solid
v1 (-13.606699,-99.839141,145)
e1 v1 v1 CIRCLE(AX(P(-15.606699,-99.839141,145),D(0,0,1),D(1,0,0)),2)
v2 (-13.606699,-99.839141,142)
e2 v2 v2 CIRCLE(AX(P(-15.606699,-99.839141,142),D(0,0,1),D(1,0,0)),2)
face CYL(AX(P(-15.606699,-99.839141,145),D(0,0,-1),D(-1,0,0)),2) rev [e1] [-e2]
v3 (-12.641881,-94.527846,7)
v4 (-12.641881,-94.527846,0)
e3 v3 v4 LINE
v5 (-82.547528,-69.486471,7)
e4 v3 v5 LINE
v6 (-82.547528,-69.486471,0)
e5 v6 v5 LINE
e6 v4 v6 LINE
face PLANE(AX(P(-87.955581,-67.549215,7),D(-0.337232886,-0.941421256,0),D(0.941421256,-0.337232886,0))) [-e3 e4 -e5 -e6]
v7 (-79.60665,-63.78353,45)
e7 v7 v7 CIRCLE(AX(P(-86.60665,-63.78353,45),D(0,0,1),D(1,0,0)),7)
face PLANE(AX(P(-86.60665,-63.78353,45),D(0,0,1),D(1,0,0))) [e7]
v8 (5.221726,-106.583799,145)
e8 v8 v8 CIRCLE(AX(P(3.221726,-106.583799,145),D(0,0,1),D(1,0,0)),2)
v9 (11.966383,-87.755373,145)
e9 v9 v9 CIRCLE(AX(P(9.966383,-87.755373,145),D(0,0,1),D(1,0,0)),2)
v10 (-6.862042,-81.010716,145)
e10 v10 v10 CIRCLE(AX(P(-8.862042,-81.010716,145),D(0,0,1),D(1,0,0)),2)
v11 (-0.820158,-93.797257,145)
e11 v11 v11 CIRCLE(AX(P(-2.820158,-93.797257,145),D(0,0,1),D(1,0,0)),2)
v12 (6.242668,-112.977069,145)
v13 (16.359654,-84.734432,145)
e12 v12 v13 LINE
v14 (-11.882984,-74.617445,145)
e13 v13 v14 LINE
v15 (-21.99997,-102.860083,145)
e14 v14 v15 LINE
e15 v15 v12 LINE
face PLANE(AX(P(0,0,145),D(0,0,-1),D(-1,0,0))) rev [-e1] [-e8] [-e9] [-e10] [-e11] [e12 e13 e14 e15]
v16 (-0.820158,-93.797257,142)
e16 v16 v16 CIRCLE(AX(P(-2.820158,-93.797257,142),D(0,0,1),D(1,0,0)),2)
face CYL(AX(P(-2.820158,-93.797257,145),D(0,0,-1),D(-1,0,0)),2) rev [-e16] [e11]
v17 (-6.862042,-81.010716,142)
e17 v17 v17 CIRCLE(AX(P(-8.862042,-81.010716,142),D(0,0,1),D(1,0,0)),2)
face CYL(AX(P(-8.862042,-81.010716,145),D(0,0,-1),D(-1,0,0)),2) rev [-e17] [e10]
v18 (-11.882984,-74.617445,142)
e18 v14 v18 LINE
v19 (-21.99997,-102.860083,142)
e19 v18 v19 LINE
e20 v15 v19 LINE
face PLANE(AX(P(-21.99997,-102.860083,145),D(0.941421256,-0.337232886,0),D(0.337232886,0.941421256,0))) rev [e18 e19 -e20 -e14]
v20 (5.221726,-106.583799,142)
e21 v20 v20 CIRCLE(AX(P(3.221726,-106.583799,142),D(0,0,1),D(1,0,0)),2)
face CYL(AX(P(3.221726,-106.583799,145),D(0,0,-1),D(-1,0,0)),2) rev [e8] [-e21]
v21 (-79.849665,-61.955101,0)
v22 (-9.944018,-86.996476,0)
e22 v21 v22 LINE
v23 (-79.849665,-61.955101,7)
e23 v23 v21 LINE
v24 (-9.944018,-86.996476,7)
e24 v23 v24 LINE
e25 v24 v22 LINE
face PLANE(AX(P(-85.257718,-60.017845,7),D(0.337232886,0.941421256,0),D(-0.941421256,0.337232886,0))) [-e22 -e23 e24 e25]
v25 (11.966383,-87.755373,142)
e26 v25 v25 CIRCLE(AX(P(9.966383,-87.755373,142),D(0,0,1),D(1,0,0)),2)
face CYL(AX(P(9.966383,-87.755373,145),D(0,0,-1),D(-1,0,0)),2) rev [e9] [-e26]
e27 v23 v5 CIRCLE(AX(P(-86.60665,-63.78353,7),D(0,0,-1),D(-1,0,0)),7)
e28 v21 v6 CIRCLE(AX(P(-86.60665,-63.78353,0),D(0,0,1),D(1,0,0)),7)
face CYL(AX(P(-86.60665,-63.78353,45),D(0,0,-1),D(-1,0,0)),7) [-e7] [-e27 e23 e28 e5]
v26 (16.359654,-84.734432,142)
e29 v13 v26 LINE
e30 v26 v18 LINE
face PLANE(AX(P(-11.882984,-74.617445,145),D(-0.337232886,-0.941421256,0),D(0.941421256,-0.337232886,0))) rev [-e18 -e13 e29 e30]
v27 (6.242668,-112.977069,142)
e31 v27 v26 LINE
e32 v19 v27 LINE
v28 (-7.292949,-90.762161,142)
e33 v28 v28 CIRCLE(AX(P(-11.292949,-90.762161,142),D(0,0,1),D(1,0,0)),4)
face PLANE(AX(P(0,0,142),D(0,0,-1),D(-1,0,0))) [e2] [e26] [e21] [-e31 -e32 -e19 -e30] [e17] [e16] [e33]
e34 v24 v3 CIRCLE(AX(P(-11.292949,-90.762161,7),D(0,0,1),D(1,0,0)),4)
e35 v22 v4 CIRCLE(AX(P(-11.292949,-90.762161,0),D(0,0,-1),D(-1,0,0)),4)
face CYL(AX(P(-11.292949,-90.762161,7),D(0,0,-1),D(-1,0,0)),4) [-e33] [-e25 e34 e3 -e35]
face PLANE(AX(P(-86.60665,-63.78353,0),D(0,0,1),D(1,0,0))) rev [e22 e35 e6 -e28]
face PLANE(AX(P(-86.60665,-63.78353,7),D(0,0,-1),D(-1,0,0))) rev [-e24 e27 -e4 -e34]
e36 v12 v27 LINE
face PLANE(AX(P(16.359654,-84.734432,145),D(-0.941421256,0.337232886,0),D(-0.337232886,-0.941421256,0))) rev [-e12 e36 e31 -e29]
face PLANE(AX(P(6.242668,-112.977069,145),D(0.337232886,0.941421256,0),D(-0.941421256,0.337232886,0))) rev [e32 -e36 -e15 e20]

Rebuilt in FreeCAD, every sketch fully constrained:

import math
import FreeCAD as App
import Part
import Sketcher

V = App.Vector

doc = App.newDocument("Part")
body = doc.addObject("PartDesign::Body", "Body")

sketch1 = body.newObject("Sketcher::SketchObject", "Sketch")
sketch1.AttachmentSupport = (doc.getObject("XY_Plane"), [""])
sketch1.MapMode = "FlatFace"
sketch1.addGeometry(Part.Circle(V(-87, -64, 0), V(0, 0, 1), 7), False)
sketch1.addConstraint(Sketcher.Constraint("Diameter", 0, 14.0))
sketch1.addConstraint(Sketcher.Constraint("DistanceX", 0, 3, -1, 1, 86.60665))
sketch1.addConstraint(Sketcher.Constraint("DistanceY", 0, 3, -1, 1, 63.78353))
pad1 = body.newObject("PartDesign::Pad", "Pad")
pad1.Profile = sketch1
pad1.Length = 45

sketch2 = body.newObject("Sketcher::SketchObject", "Sketch001")
sketch2.AttachmentSupport = (doc.getObject("XY_Plane"), [""])
sketch2.MapMode = "FlatFace"
sketch2.addGeometry(Part.LineSegment(V(-12.6, -94.5, 0), V(-88, -67.5, 0)), False)
sketch2.addGeometry(Part.ArcOfCircle(Part.Circle(V(-86.6, -63.8, 0), V(0, 0, 1), 4), math.radians(70), math.radians(250)), False)
sketch2.addGeometry(Part.LineSegment(V(-85.3, -60, 0), V(-9.9, -87, 0)), False)
sketch2.addGeometry(Part.ArcOfCircle(Part.Circle(V(-11.3, -90.8, 0), V(0, 0, 1), 4), math.radians(-110), math.radians(70)), False)
sketch2.addConstraint(Sketcher.Constraint("Tangent", 0, 2, 1, 2))
sketch2.addConstraint(Sketcher.Constraint("Tangent", 1, 1, 2, 1))
sketch2.addConstraint(Sketcher.Constraint("Tangent", 2, 2, 3, 2))
sketch2.addConstraint(Sketcher.Constraint("Tangent", 3, 1, 0, 1))
sketch2.addConstraint(Sketcher.Constraint("Equal", 1, 3))
sketch2.addConstraint(Sketcher.Constraint("Radius", 1, 4.0))
sketch2.addConstraint(Sketcher.Constraint("Distance", 0, 80.0))
sketch2.addConstraint(Sketcher.Constraint("DistanceY", 3, 1, 1, 1, 34.510001))
sketch2.addConstraint(Sketcher.Constraint("DistanceX", 1, 3, -1, 1, 86.60665))
sketch2.addConstraint(Sketcher.Constraint("DistanceY", 1, 3, -1, 1, 63.78353))
pad2 = body.newObject("PartDesign::Pad", "Pad001")
pad2.Profile = sketch2
pad2.Length = 7

sketch3 = body.newObject("Sketcher::SketchObject", "Sketch002")
sketch3.AttachmentSupport = (doc.getObject("XY_Plane"), [""])
sketch3.MapMode = "FlatFace"
sketch3.AttachmentOffset = App.Placement(V(0, 0, 7), App.Rotation())
sketch3.addGeometry(Part.Circle(V(-11.3, -90.8, 0), V(0, 0, 1), 4), False)
sketch3.addConstraint(Sketcher.Constraint("Diameter", 0, 8.0))
sketch3.addConstraint(Sketcher.Constraint("DistanceX", 0, 3, -1, 1, 11.292949))
sketch3.addConstraint(Sketcher.Constraint("DistanceY", 0, 3, -1, 1, 90.762161))
pad3 = body.newObject("PartDesign::Pad", "Pad002")
pad3.Profile = sketch3
pad3.Length = 135

sketch4 = body.newObject("Sketcher::SketchObject", "Sketch003")
sketch4.AttachmentSupport = (doc.getObject("XY_Plane"), [""])
sketch4.MapMode = "FlatFace"
sketch4.AttachmentOffset = App.Placement(V(0, 0, 142), App.Rotation())
sketch4.addGeometry(Part.LineSegment(V(16.4, -84.7, 0), V(-11.9, -74.6, 0)), False)
sketch4.addGeometry(Part.LineSegment(V(-11.9, -74.6, 0), V(-22, -102.9, 0)), False)
sketch4.addGeometry(Part.LineSegment(V(-22, -102.9, 0), V(6.2, -113, 0)), False)
sketch4.addGeometry(Part.LineSegment(V(6.2, -113, 0), V(16.4, -84.7, 0)), False)
sketch4.addGeometry(Part.Circle(V(3.2, -106.6, 0), V(0, 0, 1), 2), False)
sketch4.addGeometry(Part.Circle(V(-2.8, -93.8, 0), V(0, 0, 1), 2), False)
sketch4.addGeometry(Part.Circle(V(-15.6, -99.8, 0), V(0, 0, 1), 2), False)
sketch4.addGeometry(Part.Circle(V(10, -87.8, 0), V(0, 0, 1), 2), False)
sketch4.addGeometry(Part.Circle(V(-8.9, -81, 0), V(0, 0, 1), 2), False)
sketch4.addConstraint(Sketcher.Constraint("Coincident", 0, 2, 1, 1))
sketch4.addConstraint(Sketcher.Constraint("Coincident", 1, 2, 2, 1))
sketch4.addConstraint(Sketcher.Constraint("Coincident", 2, 2, 3, 1))
sketch4.addConstraint(Sketcher.Constraint("Coincident", 3, 2, 0, 1))
sketch4.addConstraint(Sketcher.Constraint("Equal", 4, 5))
sketch4.addConstraint(Sketcher.Constraint("Equal", 5, 6))
sketch4.addConstraint(Sketcher.Constraint("Equal", 6, 7))
sketch4.addConstraint(Sketcher.Constraint("Equal", 7, 8))
sketch4.addConstraint(Sketcher.Constraint("Perpendicular", 0, 1))
sketch4.addConstraint(Sketcher.Constraint("Perpendicular", 1, 2))
sketch4.addConstraint(Sketcher.Constraint("Perpendicular", 2, 3))
sketch4.addConstraint(Sketcher.Constraint("Equal", 0, 1))
sketch4.addConstraint(Sketcher.Constraint("Diameter", 4, 4.0))
sketch4.addConstraint(Sketcher.Constraint("Distance", 0, 30.0))
sketch4.addConstraint(Sketcher.Constraint("DistanceY", 4, 3, -1, 1, 106.583799))
sketch4.addConstraint(Sketcher.Constraint("DistanceX", 6, 3, -1, 1, 15.606699))
sketch4.addConstraint(Sketcher.Constraint("DistanceX", 5, 3, -1, 1, 2.820158))
sketch4.addConstraint(Sketcher.Constraint("DistanceY", 6, 3, -1, 1, 99.839141))
sketch4.addConstraint(Sketcher.Constraint("DistanceX", 8, 3, -1, 1, 8.862042))
sketch4.addConstraint(Sketcher.Constraint("DistanceX", 1, 2, -1, 1, 21.99997))
sketch4.addConstraint(Sketcher.Constraint("DistanceY", 2, 2, -1, 1, 112.977069))
sketch4.addConstraint(Sketcher.Constraint("DistanceY", 3, 2, -1, 1, 84.734432))
sketch4.addConstraint(Sketcher.Constraint("DistanceY", 4, 3, 5, 3, 12.786541))
sketch4.addConstraint(Sketcher.Constraint("DistanceX", 5, 3, 7, 3, 12.786541))
sketch4.addConstraint(Sketcher.Constraint("DistanceY", 5, 3, 8, 3, 12.786541))
sketch4.addConstraint(Sketcher.Constraint("DistanceY", 7, 3, 0, 2, 13.137928))
sketch4.addConstraint(Sketcher.Constraint("DistanceX", 0, 2, 4, 3, 15.104709))
pad4 = body.newObject("PartDesign::Pad", "Pad003")
pad4.Profile = sketch4
pad4.Length = 3

doc.recompute()
